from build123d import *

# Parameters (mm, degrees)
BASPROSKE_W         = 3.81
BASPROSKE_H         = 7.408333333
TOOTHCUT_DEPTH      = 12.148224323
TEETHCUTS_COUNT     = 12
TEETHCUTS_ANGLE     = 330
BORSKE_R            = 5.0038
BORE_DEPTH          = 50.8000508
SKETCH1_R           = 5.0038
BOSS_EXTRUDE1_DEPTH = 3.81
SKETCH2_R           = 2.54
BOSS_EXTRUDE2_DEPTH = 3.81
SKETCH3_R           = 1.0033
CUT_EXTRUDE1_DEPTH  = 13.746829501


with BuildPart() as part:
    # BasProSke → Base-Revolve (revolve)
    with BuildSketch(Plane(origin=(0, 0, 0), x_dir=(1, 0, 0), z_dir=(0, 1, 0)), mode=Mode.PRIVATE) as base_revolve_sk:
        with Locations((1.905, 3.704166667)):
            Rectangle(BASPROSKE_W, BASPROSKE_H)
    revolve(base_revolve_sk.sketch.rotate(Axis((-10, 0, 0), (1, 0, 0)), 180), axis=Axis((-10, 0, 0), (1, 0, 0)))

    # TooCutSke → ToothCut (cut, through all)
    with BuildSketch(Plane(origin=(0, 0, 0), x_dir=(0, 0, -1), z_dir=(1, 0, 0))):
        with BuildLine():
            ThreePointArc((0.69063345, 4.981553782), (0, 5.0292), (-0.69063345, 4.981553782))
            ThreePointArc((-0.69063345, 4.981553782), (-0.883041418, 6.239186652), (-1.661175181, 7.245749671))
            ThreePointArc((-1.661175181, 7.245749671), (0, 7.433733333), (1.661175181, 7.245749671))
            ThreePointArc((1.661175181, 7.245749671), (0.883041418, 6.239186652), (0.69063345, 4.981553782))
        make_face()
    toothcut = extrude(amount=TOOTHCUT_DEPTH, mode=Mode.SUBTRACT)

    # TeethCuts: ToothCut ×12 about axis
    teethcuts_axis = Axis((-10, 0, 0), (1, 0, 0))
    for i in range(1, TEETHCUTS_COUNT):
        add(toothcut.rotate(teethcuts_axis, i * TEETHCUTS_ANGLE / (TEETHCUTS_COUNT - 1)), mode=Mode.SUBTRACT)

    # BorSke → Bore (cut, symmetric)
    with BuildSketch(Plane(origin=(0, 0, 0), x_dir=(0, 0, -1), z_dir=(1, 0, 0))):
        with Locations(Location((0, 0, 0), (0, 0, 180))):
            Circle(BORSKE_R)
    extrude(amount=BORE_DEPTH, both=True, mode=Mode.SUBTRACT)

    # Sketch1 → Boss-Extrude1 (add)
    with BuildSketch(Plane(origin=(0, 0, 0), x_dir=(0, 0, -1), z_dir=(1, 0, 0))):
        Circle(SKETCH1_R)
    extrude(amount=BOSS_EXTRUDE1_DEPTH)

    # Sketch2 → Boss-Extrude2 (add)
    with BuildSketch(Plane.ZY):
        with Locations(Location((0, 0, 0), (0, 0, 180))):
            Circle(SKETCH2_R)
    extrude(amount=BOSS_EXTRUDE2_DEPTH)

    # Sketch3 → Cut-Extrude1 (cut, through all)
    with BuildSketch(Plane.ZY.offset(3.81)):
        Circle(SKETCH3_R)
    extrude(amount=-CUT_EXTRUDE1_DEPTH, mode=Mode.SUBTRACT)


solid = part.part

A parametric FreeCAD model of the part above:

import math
import FreeCAD as App
import Part
import Sketcher

V = App.Vector
Q = App.Units.Quantity


def add_polygon(sketch, points):
    """Adds a closed chain of lines whose ends are joined by coincident constraints."""
    first, n = sketch.GeometryCount, len(points)
    for a, b in zip(points, points[1:] + points[:1]):
        sketch.addGeometry(Part.LineSegment(App.Vector(*a, 0), App.Vector(*b, 0)), False)
    for i in range(n):
        sketch.addConstraint(Sketcher.Constraint("Coincident", first + i, 2, first + (i + 1) % n, 1))

doc = App.newDocument("Part")
body = doc.addObject("PartDesign::Body", "Body")

# Sketch on XZ plane
sketch1 = body.newObject("Sketcher::SketchObject", "Sketch")
sketch1.AttachmentSupport = (doc.getObject("XZ_Plane"), [""])
sketch1.MapMode = "FlatFace"
add_polygon(sketch1, [(0, -7.408333), (0, 0), (3.81, 0), (3.81, -7.408333)])  # lines 0-3
sketch1.addConstraint([
    Sketcher.Constraint("Vertical", 0),
    Sketcher.Constraint("Horizontal", 1),
    Sketcher.Constraint("Vertical", 2),
    Sketcher.Constraint("Horizontal", 3),
    Sketcher.Constraint("Coincident", 0, 2, -1, 1),
    Sketcher.Constraint("DistanceX", 1, 1, 1, 2, Q("0.15 in")),
    Sketcher.Constraint("DistanceY", 0, 1, 0, 2, Q("7.408333 mm")),
])
revolution = body.newObject("PartDesign::Revolution", "Revolution")
revolution.Profile = sketch1
revolution.ReferenceAxis = (sketch1, ["H_Axis"])
revolution.Angle = 360

# Sketch on YZ plane
sketch2 = body.newObject("Sketcher::SketchObject", "Sketch001")
sketch2.AttachmentSupport = (doc.getObject("YZ_Plane"), [""])
sketch2.MapMode = "FlatFace"
sketch2.addGeometry([
    Part.ArcOfCircle(Part.Circle(V(0, 0, 0), V(0, 0, 1), 5.0292), math.radians(-7.893068), math.radians(7.893068)),
    Part.ArcOfCircle(Part.Circle(V(5.238482, -3.217606, 0), V(0, 0, 1), 2.54), math.radians(37.789908), math.radians(95.805555)),
    Part.ArcOfCircle(Part.Circle(V(0, 0, 0), V(0, 0, 1), 7.433733), math.radians(-12.912599), math.radians(12.912599)),
    Part.ArcOfCircle(Part.Circle(V(5.238482, 3.217606, 0), V(0, 0, 1), 2.54), math.radians(-95.805555), math.radians(-37.789908)),
], False)
sketch2.addConstraint([
    Sketcher.Constraint("Coincident", 0, 1, 1, 2),
    Sketcher.Constraint("Coincident", 1, 1, 2, 1),
    Sketcher.Constraint("Coincident", 2, 2, 3, 2),
    Sketcher.Constraint("Coincident", 3, 1, 0, 2),
    Sketcher.Constraint("Coincident", 0, 3, -1, 1),
    Sketcher.Constraint("Coincident", 2, 3, -1, 1),
    Sketcher.Constraint("Equal", 1, 3),
    Sketcher.Constraint("Symmetric", 1, 3, 3, 3, -1),
    Sketcher.Constraint("Radius", 1, Q("0.1 in")),
    Sketcher.Constraint("Radius", 0, Q("0.198 in")),
    Sketcher.Constraint("Radius", 2, Q("7.433733 mm")),
    Sketcher.Constraint("DistanceX", -1, 1, 1, 3, Q("5.238482 mm")),
    Sketcher.Constraint("DistanceX", -1, 1, 1, 1, Q("7.24575 mm")),
])
pocket1 = body.newObject("PartDesign::Pocket", "Pocket")
pocket1.Profile = sketch2
pocket1.Type = "ThroughAll"
pocket1.Reversed = True
doc.recompute()

polarpattern = body.newObject("PartDesign::PolarPattern", "PolarPattern")
polarpattern.Originals = [pocket1]
polarpattern.Axis = (doc.getObject("X_Axis"), [""])
polarpattern.Angle = 360
polarpattern.Occurrences = 12
body.Tip = polarpattern

# Sketch on YZ plane
sketch3 = body.newObject("Sketcher::SketchObject", "Sketch002")
sketch3.AttachmentSupport = (doc.getObject("YZ_Plane"), [""])
sketch3.MapMode = "FlatFace"
sketch3.addGeometry(Part.Circle(V(0, 0, 0), V(0, 0, 1), 5.0038), False)
sketch3.addConstraint([
    Sketcher.Constraint("Coincident", 0, 3, -1, 1),
    Sketcher.Constraint("Diameter", 0, Q("0.394 in")),
])
pocket2 = body.newObject("PartDesign::Pocket", "Pocket001")
pocket2.Profile = sketch3
pocket2.Length = 101.600102
pocket2.Midplane = True

# Sketch on YZ plane
sketch4 = body.newObject("Sketcher::SketchObject", "Sketch003")
sketch4.AttachmentSupport = (doc.getObject("YZ_Plane"), [""])
sketch4.MapMode = "FlatFace"
sketch4.addGeometry(Part.Circle(V(0, 0, 0), V(0, 0, 1), 5.0038), False)
sketch4.addConstraint([
    Sketcher.Constraint("Coincident", 0, 3, -1, 1),
    Sketcher.Constraint("Diameter", 0, Q("0.394 in")),
])
pad1 = body.newObject("PartDesign::Pad", "Pad")
pad1.Profile = sketch4
pad1.Length = Q("0.15 in")

# Sketch on YZ plane
sketch5 = body.newObject("Sketcher::SketchObject", "Sketch004")
sketch5.AttachmentSupport = (doc.getObject("YZ_Plane"), [""])
sketch5.MapMode = "FlatFace"
sketch5.addGeometry(Part.Circle(V(0, 0, 0), V(0, 0, 1), 2.54), False)
sketch5.addConstraint([
    Sketcher.Constraint("Coincident", 0, 3, -1, 1),
    Sketcher.Constraint("Diameter", 0, Q("0.2 in")),
])
pad2 = body.newObject("PartDesign::Pad", "Pad001")
pad2.Profile = sketch5
pad2.Length = Q("0.15 in")
pad2.Reversed = True

# Sketch on YZ plane
sketch6 = body.newObject("Sketcher::SketchObject", "Sketch005")
sketch6.AttachmentSupport = (doc.getObject("YZ_Plane"), [""])
sketch6.MapMode = "FlatFace"
sketch6.AttachmentOffset = App.Placement(V(0, 0, -0.15 * 25.4), App.Rotation())
sketch6.addGeometry(Part.Circle(V(0, 0, 0), V(0, 0, 1), 1.0033), False)
sketch6.addConstraint([
    Sketcher.Constraint("Coincident", 0, 3, -1, 1),
    Sketcher.Constraint("Diameter", 0, Q("0.079 in")),
])
pocket3 = body.newObject("PartDesign::Pocket", "Pocket002")
pocket3.Profile = sketch6
pocket3.Type = "ThroughAll"
pocket3.Reversed = True

doc.recompute()
